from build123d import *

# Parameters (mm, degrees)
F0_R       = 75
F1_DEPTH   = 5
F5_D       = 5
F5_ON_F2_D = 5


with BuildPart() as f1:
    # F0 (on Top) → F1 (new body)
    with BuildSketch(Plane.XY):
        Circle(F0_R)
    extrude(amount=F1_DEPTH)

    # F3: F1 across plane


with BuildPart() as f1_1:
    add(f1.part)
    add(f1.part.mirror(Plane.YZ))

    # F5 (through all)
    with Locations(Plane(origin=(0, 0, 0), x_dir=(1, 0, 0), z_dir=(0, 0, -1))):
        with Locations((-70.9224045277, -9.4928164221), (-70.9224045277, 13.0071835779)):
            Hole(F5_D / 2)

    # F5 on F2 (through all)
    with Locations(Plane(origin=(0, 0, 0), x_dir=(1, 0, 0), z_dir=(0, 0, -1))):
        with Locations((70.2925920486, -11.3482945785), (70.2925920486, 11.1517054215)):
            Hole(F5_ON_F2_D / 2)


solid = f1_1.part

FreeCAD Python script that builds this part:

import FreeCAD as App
import Part
import Sketcher

doc = App.newDocument("Part")
params = doc.addObject("Spreadsheet::Sheet", "Params")
for row, (alias, value) in enumerate([
    ("sketch1_diameter", "150 mm"),
    ("pad1_length", "5 mm"),
    ("sketch2_diameter", "5 mm"),
    ("hole_diameter", "5 mm"),
    ("sketch3_diameter", "5 mm"),
    ("hole2_diameter", "5 mm"),
], start=1):
    params.set(f"A{row}", alias)
    params.set(f"B{row}", "=" + value)
    params.setAlias(f"B{row}", alias)

body = doc.addObject("PartDesign::Body", "Body")

# Sketch on XY plane
sketch1 = body.newObject("Sketcher::SketchObject", "Sketch")
sketch1.AttachmentSupport = (doc.getObject("XY_Plane"), [""])
sketch1.MapMode = "FlatFace"
sketch1.addGeometry(Part.Circle(App.Vector(0, 0, 0), App.Vector(0, 0, 1), 75), False)
sketch1.addConstraint([
    Sketcher.Constraint("Coincident", 0, 3, -1, 1),
    Sketcher.Constraint("Diameter", 0, 150.0),
])
sketch1.setExpression("Constraints[1]", "Params.sketch1_diameter")
pad1 = body.newObject("PartDesign::Pad", "Pad")
pad1.Profile = sketch1
pad1.setExpression("Length", "Params.pad1_length")
body2 = doc.addObject("PartDesign::Body", "Body001")
doc.recompute()

body2.BaseFeature = body
doc.recompute()

mirroring = doc.addObject("Part::Mirroring", "Mirroring")
mirroring.Source = body
mirroring.Base = App.Vector(0, 0, 0)
mirroring.Normal = App.Vector(1, 0, 0)
body3 = doc.addObject("PartDesign::Body", "Body002")
body3.BaseFeature = mirroring
boolean = body2.newObject("PartDesign::Boolean", "Boolean")
boolean.Type = "Fuse"
boolean.addObjects([body3])
doc.recompute()

# Sketch on XY plane
sketch2 = body2.newObject("Sketcher::SketchObject", "Sketch001")
sketch2.AttachmentSupport = (doc.getObject("XY_Plane001"), [""])
sketch2.MapMode = "FlatFace"
sketch2.addGeometry([
    Part.Circle(App.Vector(-70.9, 9.5, 0), App.Vector(0, 0, 1), 2.5),
    Part.Circle(App.Vector(-70.9, -13, 0), App.Vector(0, 0, 1), 2.5),
], False)
sketch2.addConstraint([
    Sketcher.Constraint("Equal", 0, 1),
    Sketcher.Constraint("Vertical", 0, 3, 1, 3),
    Sketcher.Constraint("Diameter", 0, 5.0),
    Sketcher.Constraint("DistanceY", 1, 3, 0, 3, 22.5),
    Sketcher.Constraint("DistanceX", 0, 3, -1, 1, 70.922405),
    Sketcher.Constraint("DistanceY", -1, 1, 0, 3, 9.492816),
])
sketch2.setExpression("Constraints[2]", "Params.sketch2_diameter")
doc.recompute()
hole = body2.newObject("PartDesign::Hole", "Hole")
hole.Profile = sketch2
hole.ThreadType = "None"
hole.setExpression("Diameter", "Params.hole_diameter")
hole.DepthType = "ThroughAll"
hole.Reversed = True

# Sketch on XY plane
sketch3 = body2.newObject("Sketcher::SketchObject", "Sketch002")
sketch3.AttachmentSupport = (doc.getObject("XY_Plane001"), [""])
sketch3.MapMode = "FlatFace"
sketch3.addGeometry([
    Part.Circle(App.Vector(70.3, 11.3, 0), App.Vector(0, 0, 1), 2.5),
    Part.Circle(App.Vector(70.3, -11.2, 0), App.Vector(0, 0, 1), 2.5),
], False)
sketch3.addConstraint([
    Sketcher.Constraint("Equal", 0, 1),
    Sketcher.Constraint("Vertical", 0, 3, 1, 3),
    Sketcher.Constraint("Diameter", 0, 5.0),
    Sketcher.Constraint("DistanceY", 1, 3, 0, 3, 22.5),
    Sketcher.Constraint("DistanceX", -1, 1, 0, 3, 70.292592),
    Sketcher.Constraint("DistanceY", -1, 1, 0, 3, 11.348295),
])
sketch3.setExpression("Constraints[2]", "Params.sketch3_diameter")
doc.recompute()
hole2 = body2.newObject("PartDesign::Hole", "Hole001")
hole2.Profile = sketch3
hole2.ThreadType = "None"
hole2.setExpression("Diameter", "Params.hole2_diameter")
hole2.DepthType = "ThroughAll"
hole2.Reversed = True
mirroring.Visibility = False

doc.recompute()
